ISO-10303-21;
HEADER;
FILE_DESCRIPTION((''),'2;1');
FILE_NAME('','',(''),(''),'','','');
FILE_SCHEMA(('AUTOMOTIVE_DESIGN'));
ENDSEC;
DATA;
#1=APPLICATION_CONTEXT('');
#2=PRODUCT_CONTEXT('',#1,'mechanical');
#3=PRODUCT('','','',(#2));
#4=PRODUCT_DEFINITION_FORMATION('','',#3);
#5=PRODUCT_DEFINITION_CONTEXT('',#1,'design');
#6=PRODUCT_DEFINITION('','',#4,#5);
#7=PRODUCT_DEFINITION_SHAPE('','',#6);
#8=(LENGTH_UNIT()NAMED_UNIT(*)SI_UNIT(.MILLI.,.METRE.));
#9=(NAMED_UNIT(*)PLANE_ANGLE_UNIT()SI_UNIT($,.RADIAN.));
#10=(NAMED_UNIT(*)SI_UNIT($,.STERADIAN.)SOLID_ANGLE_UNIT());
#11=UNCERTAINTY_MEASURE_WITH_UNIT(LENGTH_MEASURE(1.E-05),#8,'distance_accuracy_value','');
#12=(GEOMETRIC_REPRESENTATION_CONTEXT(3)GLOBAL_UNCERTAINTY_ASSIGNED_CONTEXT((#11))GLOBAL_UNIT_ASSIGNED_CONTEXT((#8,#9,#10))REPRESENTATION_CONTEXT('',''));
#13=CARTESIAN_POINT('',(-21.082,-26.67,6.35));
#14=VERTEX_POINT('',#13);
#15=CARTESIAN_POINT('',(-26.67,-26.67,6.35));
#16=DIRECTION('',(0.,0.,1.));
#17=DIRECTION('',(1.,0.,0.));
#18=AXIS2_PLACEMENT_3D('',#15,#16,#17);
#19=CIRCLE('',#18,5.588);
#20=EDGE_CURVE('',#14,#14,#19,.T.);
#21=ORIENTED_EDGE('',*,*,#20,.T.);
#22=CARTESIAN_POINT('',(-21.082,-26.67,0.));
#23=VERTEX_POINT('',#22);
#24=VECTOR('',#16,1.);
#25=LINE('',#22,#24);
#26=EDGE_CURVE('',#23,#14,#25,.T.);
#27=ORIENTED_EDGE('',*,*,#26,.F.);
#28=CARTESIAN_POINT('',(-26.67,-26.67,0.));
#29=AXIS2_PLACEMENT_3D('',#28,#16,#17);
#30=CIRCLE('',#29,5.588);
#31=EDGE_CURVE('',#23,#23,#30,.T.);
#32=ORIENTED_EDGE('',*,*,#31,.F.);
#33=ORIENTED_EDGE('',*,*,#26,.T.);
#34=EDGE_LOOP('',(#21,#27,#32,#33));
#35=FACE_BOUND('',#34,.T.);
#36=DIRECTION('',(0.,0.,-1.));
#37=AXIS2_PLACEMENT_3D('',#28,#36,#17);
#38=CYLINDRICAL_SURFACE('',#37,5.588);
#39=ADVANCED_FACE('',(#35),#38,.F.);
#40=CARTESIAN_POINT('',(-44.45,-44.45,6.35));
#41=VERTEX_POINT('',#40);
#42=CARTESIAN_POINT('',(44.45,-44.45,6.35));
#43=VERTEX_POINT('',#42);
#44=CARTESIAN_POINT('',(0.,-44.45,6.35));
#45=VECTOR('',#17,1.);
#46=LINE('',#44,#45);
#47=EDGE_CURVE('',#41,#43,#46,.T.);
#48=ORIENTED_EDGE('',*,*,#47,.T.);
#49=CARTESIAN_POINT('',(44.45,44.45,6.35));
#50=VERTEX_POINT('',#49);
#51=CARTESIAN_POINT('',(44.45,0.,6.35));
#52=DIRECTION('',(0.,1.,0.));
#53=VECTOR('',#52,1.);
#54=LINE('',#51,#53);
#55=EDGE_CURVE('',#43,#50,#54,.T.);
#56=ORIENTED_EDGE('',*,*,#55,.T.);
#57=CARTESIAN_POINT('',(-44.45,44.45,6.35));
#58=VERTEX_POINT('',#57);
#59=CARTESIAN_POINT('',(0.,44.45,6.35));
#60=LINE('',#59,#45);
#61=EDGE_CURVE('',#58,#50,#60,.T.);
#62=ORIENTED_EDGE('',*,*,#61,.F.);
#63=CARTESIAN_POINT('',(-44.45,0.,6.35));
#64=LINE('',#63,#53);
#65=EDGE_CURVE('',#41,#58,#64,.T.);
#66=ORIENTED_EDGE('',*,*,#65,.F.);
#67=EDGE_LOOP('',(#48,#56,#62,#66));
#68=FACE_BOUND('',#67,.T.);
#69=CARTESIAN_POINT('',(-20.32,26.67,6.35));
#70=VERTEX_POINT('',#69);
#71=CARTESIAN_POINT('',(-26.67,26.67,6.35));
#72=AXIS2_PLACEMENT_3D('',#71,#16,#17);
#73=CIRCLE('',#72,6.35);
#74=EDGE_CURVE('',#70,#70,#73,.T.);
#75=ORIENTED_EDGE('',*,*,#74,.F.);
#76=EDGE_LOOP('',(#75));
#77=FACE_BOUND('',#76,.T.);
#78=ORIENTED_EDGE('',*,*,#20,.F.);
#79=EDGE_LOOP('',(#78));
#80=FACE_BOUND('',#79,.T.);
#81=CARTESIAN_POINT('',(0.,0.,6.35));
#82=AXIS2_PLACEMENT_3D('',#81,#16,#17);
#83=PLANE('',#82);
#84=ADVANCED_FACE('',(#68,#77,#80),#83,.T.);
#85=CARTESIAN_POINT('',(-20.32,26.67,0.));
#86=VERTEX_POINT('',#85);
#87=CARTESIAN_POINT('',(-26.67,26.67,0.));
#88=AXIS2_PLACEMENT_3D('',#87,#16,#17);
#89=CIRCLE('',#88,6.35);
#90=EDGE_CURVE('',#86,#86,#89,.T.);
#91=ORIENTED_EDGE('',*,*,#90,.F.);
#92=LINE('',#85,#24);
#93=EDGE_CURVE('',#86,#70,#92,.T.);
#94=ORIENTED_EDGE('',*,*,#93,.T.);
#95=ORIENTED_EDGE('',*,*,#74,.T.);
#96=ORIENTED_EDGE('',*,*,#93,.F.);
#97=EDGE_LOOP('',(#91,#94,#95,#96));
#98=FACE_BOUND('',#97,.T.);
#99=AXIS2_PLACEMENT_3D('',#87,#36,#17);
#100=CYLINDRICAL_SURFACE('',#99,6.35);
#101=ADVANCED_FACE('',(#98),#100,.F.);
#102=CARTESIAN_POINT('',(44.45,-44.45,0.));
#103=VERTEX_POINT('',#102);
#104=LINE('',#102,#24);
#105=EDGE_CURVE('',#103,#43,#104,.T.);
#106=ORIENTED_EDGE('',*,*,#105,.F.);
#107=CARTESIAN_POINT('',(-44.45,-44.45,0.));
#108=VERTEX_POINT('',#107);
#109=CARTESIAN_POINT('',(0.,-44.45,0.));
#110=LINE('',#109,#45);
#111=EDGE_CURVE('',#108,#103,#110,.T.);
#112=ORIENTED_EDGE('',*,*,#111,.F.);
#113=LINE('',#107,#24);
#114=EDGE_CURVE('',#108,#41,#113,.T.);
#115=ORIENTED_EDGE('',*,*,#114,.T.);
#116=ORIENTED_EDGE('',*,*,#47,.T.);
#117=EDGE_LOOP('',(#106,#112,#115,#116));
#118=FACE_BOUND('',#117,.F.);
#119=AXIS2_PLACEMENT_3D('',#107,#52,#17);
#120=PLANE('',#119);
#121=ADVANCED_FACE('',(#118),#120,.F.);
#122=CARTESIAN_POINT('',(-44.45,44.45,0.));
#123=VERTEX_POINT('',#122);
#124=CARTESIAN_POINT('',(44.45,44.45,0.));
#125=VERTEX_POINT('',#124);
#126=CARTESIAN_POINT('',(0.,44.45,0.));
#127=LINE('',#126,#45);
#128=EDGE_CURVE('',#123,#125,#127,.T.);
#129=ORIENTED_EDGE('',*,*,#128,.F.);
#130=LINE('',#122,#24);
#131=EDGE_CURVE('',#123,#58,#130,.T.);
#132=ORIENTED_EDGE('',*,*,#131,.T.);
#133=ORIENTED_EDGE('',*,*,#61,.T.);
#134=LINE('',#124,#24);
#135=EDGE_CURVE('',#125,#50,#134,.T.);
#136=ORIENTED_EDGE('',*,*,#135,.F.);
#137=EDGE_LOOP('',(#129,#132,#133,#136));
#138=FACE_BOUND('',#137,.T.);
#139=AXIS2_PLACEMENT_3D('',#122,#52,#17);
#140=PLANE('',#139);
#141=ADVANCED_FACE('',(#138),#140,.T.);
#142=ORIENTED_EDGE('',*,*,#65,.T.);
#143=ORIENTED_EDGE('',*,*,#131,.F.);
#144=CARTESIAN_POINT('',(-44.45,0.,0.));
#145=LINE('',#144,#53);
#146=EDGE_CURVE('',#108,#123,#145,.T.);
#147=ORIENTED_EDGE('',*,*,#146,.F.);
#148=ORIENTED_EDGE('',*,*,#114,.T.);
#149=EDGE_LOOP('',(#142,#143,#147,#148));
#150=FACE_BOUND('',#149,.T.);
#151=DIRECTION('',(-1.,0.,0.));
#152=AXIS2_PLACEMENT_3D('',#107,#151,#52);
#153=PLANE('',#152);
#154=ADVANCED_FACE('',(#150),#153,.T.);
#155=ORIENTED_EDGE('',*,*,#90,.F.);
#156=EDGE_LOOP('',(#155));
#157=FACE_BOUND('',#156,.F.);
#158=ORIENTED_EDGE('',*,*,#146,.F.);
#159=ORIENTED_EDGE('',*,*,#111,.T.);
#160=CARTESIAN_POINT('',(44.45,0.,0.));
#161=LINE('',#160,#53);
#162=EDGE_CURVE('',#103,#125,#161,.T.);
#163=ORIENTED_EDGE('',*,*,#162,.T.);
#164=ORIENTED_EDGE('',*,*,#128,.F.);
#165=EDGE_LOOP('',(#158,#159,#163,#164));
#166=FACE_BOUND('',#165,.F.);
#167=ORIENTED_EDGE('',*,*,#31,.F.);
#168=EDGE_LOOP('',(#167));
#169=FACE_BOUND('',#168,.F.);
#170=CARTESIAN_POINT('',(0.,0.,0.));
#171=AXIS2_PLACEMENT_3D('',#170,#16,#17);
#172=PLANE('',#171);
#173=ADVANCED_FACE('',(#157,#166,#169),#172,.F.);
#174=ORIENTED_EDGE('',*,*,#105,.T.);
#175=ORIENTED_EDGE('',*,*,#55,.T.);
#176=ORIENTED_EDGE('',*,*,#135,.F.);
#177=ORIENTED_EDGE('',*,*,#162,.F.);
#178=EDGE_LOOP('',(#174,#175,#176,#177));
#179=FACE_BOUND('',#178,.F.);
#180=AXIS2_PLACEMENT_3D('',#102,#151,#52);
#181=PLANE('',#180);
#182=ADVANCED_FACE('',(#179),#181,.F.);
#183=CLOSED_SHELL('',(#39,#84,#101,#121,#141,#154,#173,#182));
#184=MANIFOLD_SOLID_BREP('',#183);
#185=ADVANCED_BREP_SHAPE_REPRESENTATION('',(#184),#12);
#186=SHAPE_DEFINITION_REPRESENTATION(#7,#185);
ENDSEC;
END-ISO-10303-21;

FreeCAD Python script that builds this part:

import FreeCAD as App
import Part
import Sketcher
from FreeCAD import Vector
Q = App.Units.Quantity


def add_polygon(sketch, points):
    """Adds a closed chain of lines whose ends are joined by coincident constraints."""
    first, n = sketch.GeometryCount, len(points)
    for a, b in zip(points, points[1:] + points[:1]):
        sketch.addGeometry(Part.LineSegment(App.Vector(*a, 0), App.Vector(*b, 0)), False)
    for i in range(n):
        sketch.addConstraint(Sketcher.Constraint("Coincident", first + i, 2, first + (i + 1) % n, 1))

doc = App.newDocument("Part")
body = doc.addObject("PartDesign::Body", "Body")

sketch1 = body.newObject("Sketcher::SketchObject", "Sketch")
sketch1.AttachmentSupport = (doc.getObject("XY_Plane"), [""])
sketch1.MapMode = "FlatFace"
add_polygon(sketch1, [(-44, 44), (-44, -44), (44, -44), (44, 44)])
sketch1.addGeometry(Part.Circle(Vector(-27, -27, 0), Vector(0, 0, 1), 6), False)
sketch1.addGeometry(Part.Circle(Vector(-27, 27, 0), Vector(0, 0, 1), 6), False)
sketch1.addConstraint(Sketcher.Constraint("Vertical", 0))
sketch1.addConstraint(Sketcher.Constraint("Horizontal", 1))
sketch1.addConstraint(Sketcher.Constraint("Vertical", 2))
sketch1.addConstraint(Sketcher.Constraint("Horizontal", 3))
sketch1.addConstraint(Sketcher.Constraint("Symmetric", 0, 2, 2, 2, -1, 1))
sketch1.addConstraint(Sketcher.Constraint("Symmetric", 4, 3, 5, 3, -1))
sketch1.addConstraint(Sketcher.Constraint("Equal", 3, 0))
sketch1.addConstraint(Sketcher.Constraint("Diameter", 5, Q("0.5 in")))
sketch1.addConstraint(Sketcher.Constraint("Diameter", 4, Q("0.44 in")))
sketch1.addConstraint(Sketcher.Constraint("DistanceX", 1, 1, 1, 2, Q("3.5 in")))
sketch1.addConstraint(Sketcher.Constraint("DistanceY", 4, 3, 5, 3, Q("2.1 in")))
sketch1.addConstraint(Sketcher.Constraint("DistanceX", 0, 2, 4, 3, Q("0.7 in")))
pad1 = body.newObject("PartDesign::Pad", "Pad")
pad1.Profile = sketch1
pad1.Length = Q("0.25 in")

doc.recompute()
